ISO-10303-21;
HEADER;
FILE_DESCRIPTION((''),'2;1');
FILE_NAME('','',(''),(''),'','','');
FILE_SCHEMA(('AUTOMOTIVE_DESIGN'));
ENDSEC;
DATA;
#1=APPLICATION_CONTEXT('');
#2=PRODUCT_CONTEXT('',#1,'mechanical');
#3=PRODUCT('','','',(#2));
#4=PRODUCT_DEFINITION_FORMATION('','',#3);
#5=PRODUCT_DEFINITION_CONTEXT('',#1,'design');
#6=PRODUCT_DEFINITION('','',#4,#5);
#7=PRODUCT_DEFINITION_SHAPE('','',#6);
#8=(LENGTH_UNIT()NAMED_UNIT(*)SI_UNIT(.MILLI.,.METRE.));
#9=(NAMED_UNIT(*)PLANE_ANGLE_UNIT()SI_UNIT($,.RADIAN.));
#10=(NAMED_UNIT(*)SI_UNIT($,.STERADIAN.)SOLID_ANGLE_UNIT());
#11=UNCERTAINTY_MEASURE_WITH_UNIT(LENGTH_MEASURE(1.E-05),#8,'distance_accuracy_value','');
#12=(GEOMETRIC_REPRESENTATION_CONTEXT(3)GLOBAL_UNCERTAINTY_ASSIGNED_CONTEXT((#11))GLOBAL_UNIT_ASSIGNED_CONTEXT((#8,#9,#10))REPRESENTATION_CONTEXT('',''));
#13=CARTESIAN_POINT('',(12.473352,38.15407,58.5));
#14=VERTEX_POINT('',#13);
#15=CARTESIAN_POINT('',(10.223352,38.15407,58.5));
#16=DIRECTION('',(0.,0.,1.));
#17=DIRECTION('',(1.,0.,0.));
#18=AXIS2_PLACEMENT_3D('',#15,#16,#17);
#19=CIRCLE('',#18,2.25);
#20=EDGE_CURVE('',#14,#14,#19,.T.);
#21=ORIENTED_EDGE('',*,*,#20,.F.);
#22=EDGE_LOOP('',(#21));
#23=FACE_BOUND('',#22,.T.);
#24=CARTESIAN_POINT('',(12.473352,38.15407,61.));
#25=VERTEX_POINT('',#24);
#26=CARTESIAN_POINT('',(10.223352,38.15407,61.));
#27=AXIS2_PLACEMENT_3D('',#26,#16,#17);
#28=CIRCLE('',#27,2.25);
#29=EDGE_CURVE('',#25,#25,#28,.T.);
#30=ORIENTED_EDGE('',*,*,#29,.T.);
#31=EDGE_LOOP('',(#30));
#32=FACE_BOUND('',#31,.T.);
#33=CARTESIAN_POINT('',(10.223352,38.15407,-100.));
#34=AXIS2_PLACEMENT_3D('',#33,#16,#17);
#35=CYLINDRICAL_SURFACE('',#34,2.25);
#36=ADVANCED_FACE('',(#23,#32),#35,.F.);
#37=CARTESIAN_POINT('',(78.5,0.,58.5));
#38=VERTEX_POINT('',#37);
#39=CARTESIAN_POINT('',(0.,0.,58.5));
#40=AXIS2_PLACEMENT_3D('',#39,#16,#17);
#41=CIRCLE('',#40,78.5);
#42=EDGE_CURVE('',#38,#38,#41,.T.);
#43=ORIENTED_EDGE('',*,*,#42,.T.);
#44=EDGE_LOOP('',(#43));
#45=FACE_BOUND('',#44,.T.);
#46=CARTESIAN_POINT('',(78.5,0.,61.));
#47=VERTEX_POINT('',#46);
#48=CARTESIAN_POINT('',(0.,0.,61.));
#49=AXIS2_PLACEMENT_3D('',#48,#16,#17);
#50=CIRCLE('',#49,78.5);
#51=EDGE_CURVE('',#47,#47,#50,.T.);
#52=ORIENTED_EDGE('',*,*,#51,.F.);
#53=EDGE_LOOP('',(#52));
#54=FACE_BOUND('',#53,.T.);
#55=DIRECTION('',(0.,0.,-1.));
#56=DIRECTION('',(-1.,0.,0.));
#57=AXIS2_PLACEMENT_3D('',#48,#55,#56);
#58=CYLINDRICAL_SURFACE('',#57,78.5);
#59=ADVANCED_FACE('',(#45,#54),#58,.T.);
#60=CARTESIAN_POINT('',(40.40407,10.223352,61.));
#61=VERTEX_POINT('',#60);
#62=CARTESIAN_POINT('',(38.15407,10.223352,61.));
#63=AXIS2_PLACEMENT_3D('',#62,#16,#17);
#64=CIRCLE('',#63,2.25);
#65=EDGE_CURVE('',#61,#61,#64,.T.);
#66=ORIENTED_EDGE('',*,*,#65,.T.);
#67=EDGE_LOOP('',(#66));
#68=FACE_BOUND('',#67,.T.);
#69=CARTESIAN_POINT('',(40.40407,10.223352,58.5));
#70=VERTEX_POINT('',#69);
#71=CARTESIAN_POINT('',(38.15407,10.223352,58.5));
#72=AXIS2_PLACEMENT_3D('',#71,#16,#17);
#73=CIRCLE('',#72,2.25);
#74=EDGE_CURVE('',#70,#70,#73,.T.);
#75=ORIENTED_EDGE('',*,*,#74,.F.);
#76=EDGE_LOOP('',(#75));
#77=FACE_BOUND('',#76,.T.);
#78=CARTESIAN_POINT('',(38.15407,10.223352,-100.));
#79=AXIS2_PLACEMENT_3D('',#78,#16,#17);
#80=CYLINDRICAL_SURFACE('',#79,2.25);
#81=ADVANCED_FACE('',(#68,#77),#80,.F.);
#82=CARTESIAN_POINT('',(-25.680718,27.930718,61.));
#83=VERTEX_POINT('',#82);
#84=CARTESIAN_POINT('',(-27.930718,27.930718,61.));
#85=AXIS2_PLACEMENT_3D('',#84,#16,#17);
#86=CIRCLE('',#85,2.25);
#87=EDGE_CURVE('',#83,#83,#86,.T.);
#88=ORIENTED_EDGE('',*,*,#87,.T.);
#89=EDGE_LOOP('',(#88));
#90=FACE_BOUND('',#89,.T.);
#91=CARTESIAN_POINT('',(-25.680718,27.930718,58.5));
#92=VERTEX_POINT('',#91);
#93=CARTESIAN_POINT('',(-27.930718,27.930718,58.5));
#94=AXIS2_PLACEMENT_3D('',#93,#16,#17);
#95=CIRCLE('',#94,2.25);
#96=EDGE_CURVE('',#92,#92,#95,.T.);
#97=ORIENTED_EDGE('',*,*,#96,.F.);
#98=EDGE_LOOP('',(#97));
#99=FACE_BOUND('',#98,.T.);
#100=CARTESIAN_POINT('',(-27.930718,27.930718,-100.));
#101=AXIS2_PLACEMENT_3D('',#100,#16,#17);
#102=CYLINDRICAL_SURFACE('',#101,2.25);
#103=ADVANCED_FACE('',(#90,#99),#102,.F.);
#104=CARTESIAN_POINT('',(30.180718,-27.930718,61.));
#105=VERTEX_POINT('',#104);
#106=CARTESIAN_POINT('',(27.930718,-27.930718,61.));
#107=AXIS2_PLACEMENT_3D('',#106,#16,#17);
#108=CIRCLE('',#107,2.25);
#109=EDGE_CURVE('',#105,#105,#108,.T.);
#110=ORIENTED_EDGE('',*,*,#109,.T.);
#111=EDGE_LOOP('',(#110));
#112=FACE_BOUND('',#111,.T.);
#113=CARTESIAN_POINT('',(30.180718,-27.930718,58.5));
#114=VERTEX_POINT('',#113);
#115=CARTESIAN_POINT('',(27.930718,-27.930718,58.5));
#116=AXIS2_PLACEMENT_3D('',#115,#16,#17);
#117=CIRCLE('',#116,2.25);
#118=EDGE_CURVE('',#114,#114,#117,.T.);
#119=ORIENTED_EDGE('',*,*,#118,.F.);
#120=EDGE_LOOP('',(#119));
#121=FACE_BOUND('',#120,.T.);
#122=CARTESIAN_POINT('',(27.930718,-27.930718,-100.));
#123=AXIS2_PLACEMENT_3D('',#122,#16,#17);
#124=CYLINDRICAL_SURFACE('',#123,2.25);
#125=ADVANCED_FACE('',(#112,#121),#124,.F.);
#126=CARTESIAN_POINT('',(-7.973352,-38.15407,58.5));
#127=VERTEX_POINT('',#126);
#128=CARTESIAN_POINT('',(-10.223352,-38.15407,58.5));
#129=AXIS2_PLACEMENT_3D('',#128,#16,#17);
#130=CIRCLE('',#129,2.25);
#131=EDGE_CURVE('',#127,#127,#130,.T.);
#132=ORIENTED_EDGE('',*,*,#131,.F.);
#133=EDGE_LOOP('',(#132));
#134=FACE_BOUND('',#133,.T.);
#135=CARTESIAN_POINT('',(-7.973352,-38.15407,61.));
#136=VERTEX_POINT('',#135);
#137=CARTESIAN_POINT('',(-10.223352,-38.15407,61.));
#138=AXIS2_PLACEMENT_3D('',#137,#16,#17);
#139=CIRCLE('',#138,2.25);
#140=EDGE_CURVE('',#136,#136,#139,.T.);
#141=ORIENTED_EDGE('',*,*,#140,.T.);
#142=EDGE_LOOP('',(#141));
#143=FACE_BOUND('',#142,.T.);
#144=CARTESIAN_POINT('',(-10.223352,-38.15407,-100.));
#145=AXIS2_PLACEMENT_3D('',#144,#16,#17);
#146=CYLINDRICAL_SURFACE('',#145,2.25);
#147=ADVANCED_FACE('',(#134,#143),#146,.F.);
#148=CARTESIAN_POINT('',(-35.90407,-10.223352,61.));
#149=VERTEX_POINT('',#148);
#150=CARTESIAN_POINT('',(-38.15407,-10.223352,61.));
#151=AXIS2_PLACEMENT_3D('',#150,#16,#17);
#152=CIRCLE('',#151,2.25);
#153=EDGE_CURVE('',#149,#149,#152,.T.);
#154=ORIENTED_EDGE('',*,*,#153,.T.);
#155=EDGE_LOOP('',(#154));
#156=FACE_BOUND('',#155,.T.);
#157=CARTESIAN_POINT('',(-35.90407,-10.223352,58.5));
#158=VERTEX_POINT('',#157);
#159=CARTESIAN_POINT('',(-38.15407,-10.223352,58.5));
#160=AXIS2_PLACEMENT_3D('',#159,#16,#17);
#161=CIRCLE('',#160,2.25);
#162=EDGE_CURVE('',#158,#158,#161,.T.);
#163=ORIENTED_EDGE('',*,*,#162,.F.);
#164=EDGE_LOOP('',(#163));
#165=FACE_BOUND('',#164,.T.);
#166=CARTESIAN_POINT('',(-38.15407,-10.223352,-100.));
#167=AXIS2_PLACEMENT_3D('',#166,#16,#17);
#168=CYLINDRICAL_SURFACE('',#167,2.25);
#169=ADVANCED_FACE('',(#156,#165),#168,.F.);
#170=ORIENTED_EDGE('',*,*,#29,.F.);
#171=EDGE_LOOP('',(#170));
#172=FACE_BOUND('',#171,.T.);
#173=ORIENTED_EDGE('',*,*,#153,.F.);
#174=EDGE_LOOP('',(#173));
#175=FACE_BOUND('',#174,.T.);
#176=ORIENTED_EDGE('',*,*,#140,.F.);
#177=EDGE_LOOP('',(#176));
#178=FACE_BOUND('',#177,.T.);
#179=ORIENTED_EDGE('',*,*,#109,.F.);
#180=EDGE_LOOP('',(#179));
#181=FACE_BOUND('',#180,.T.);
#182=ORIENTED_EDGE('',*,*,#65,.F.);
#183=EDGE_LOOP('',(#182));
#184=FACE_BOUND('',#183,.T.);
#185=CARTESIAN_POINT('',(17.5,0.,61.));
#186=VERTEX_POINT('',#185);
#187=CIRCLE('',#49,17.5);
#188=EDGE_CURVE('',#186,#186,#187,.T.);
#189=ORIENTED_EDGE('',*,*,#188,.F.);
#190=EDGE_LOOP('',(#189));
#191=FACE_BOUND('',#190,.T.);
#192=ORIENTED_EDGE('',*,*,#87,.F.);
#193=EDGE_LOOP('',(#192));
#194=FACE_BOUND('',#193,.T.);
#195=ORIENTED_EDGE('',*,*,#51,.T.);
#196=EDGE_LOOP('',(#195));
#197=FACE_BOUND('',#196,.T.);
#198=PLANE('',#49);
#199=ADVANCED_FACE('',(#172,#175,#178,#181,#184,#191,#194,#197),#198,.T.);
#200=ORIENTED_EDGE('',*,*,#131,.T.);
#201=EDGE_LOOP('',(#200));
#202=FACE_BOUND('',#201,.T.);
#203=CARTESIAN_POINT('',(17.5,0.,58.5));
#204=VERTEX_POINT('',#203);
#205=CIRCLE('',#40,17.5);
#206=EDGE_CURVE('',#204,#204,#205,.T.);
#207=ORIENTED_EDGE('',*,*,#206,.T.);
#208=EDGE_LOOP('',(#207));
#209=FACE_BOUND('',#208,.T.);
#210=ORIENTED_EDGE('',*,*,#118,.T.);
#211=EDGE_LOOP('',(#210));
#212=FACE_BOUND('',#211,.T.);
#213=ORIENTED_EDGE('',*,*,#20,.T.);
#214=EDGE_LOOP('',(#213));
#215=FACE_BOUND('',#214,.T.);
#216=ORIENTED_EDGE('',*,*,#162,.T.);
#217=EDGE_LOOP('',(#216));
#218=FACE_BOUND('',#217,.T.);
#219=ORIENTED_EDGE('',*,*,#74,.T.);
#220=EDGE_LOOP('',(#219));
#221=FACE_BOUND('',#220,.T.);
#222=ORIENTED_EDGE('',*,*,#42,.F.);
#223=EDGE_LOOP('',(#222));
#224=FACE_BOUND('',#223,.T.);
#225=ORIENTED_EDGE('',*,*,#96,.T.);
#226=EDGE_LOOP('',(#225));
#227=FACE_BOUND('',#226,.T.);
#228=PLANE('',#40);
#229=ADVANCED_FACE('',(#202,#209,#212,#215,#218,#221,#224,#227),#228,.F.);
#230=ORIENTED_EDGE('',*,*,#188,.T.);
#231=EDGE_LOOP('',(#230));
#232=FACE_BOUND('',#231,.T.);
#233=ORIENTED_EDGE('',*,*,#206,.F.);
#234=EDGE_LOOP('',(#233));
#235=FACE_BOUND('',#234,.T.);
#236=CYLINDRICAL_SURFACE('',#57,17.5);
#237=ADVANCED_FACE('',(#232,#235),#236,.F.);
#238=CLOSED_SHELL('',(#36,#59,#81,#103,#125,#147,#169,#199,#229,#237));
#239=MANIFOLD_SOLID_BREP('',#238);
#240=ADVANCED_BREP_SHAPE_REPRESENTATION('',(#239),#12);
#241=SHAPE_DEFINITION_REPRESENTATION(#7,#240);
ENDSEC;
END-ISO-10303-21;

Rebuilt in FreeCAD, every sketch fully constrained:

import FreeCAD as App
import Part
import Sketcher
Q = App.Units.Quantity

doc = App.newDocument("Part")
body = doc.addObject("PartDesign::Body", "Body")

# Sketch on XY plane
sketch1 = doc.addObject("Sketcher::SketchObject", "Sketch")
body.addObject(sketch1)
sketch1.AttachmentSupport = (doc.XY_Plane, [""])
sketch1.MapMode = "FlatFace"
sketch1.AttachmentOffset = App.Placement(App.Vector(0, 0, 58.5), App.Rotation())
sketch1.addGeometry(Part.Circle(App.Vector(0, 0, 0), App.Vector(0, 0, 1), 78), False)
sketch1.addGeometry(Part.Circle(App.Vector(0, 0, 0), App.Vector(0, 0, 1), 18), False)
sketch1.addConstraint(Sketcher.Constraint("Coincident", 0, 3, -1, 1))
sketch1.addConstraint(Sketcher.Constraint("Coincident", 1, 3, -1, 1))
sketch1.addConstraint(Sketcher.Constraint("Diameter", 0, Q("157 mm")))
sketch1.addConstraint(Sketcher.Constraint("Diameter", 1, Q("35 mm")))
pad1 = doc.addObject("PartDesign::Pad", "Pad")
body.addObject(pad1)
pad1.Profile = sketch1
pad1.Length = 2.5

# Sketch on XY plane
sketch2 = doc.addObject("Sketcher::SketchObject", "Sketch001")
body.addObject(sketch2)
sketch2.AttachmentSupport = (doc.XY_Plane, [""])
sketch2.MapMode = "FlatFace"
sketch2.addGeometry(Part.Circle(App.Vector(38.2, 10.2, 0), App.Vector(0, 0, 1), 2.2), False)
sketch2.addGeometry(Part.Circle(App.Vector(10.2, 38.2, 0), App.Vector(0, 0, 1), 2.2), False)
sketch2.addGeometry(Part.Circle(App.Vector(-27.9, 27.9, 0), App.Vector(0, 0, 1), 2.2), False)
sketch2.addGeometry(Part.Circle(App.Vector(-38.2, -10.2, 0), App.Vector(0, 0, 1), 2.2), False)
sketch2.addGeometry(Part.Circle(App.Vector(-10.2, -38.2, 0), App.Vector(0, 0, 1), 2.2), False)
sketch2.addGeometry(Part.Circle(App.Vector(27.9, -27.9, 0), App.Vector(0, 0, 1), 2.2), False)
sketch2.addConstraint(Sketcher.Constraint("Equal", 0, 1))
sketch2.addConstraint(Sketcher.Constraint("Equal", 1, 2))
sketch2.addConstraint(Sketcher.Constraint("Equal", 2, 3))
sketch2.addConstraint(Sketcher.Constraint("Equal", 3, 4))
sketch2.addConstraint(Sketcher.Constraint("Equal", 4, 5))
sketch2.addConstraint(Sketcher.Constraint("Symmetric", 0, 3, 3, 3, -1, 1))
sketch2.addConstraint(Sketcher.Constraint("Symmetric", 1, 3, 4, 3, -1, 1))
sketch2.addConstraint(Sketcher.Constraint("Symmetric", 2, 3, 5, 3, -1, 1))
sketch2.addConstraint(Sketcher.Constraint("Diameter", 0, Q("4.5 mm")))
sketch2.addConstraint(Sketcher.Constraint("DistanceX", -1, 1, 0, 3, Q("38.15407 mm")))
sketch2.addConstraint(Sketcher.Constraint("DistanceY", -1, 1, 1, 3, Q("38.15407 mm")))
sketch2.addConstraint(Sketcher.Constraint("DistanceX", 2, 3, 1, 3, Q("38.15407 mm")))
sketch2.addConstraint(Sketcher.Constraint("DistanceY", 3, 3, 2, 3, Q("38.15407 mm")))
sketch2.addConstraint(Sketcher.Constraint("DistanceY", -1, 1, 0, 3, Q("10.223352 mm")))
sketch2.addConstraint(Sketcher.Constraint("DistanceX", -1, 1, 1, 3, Q("10.223352 mm")))
pocket1 = doc.addObject("PartDesign::Pocket", "Pocket")
body.addObject(pocket1)
pocket1.Profile = sketch2
pocket1.Length = 200
pocket1.Midplane = True

doc.recompute()
